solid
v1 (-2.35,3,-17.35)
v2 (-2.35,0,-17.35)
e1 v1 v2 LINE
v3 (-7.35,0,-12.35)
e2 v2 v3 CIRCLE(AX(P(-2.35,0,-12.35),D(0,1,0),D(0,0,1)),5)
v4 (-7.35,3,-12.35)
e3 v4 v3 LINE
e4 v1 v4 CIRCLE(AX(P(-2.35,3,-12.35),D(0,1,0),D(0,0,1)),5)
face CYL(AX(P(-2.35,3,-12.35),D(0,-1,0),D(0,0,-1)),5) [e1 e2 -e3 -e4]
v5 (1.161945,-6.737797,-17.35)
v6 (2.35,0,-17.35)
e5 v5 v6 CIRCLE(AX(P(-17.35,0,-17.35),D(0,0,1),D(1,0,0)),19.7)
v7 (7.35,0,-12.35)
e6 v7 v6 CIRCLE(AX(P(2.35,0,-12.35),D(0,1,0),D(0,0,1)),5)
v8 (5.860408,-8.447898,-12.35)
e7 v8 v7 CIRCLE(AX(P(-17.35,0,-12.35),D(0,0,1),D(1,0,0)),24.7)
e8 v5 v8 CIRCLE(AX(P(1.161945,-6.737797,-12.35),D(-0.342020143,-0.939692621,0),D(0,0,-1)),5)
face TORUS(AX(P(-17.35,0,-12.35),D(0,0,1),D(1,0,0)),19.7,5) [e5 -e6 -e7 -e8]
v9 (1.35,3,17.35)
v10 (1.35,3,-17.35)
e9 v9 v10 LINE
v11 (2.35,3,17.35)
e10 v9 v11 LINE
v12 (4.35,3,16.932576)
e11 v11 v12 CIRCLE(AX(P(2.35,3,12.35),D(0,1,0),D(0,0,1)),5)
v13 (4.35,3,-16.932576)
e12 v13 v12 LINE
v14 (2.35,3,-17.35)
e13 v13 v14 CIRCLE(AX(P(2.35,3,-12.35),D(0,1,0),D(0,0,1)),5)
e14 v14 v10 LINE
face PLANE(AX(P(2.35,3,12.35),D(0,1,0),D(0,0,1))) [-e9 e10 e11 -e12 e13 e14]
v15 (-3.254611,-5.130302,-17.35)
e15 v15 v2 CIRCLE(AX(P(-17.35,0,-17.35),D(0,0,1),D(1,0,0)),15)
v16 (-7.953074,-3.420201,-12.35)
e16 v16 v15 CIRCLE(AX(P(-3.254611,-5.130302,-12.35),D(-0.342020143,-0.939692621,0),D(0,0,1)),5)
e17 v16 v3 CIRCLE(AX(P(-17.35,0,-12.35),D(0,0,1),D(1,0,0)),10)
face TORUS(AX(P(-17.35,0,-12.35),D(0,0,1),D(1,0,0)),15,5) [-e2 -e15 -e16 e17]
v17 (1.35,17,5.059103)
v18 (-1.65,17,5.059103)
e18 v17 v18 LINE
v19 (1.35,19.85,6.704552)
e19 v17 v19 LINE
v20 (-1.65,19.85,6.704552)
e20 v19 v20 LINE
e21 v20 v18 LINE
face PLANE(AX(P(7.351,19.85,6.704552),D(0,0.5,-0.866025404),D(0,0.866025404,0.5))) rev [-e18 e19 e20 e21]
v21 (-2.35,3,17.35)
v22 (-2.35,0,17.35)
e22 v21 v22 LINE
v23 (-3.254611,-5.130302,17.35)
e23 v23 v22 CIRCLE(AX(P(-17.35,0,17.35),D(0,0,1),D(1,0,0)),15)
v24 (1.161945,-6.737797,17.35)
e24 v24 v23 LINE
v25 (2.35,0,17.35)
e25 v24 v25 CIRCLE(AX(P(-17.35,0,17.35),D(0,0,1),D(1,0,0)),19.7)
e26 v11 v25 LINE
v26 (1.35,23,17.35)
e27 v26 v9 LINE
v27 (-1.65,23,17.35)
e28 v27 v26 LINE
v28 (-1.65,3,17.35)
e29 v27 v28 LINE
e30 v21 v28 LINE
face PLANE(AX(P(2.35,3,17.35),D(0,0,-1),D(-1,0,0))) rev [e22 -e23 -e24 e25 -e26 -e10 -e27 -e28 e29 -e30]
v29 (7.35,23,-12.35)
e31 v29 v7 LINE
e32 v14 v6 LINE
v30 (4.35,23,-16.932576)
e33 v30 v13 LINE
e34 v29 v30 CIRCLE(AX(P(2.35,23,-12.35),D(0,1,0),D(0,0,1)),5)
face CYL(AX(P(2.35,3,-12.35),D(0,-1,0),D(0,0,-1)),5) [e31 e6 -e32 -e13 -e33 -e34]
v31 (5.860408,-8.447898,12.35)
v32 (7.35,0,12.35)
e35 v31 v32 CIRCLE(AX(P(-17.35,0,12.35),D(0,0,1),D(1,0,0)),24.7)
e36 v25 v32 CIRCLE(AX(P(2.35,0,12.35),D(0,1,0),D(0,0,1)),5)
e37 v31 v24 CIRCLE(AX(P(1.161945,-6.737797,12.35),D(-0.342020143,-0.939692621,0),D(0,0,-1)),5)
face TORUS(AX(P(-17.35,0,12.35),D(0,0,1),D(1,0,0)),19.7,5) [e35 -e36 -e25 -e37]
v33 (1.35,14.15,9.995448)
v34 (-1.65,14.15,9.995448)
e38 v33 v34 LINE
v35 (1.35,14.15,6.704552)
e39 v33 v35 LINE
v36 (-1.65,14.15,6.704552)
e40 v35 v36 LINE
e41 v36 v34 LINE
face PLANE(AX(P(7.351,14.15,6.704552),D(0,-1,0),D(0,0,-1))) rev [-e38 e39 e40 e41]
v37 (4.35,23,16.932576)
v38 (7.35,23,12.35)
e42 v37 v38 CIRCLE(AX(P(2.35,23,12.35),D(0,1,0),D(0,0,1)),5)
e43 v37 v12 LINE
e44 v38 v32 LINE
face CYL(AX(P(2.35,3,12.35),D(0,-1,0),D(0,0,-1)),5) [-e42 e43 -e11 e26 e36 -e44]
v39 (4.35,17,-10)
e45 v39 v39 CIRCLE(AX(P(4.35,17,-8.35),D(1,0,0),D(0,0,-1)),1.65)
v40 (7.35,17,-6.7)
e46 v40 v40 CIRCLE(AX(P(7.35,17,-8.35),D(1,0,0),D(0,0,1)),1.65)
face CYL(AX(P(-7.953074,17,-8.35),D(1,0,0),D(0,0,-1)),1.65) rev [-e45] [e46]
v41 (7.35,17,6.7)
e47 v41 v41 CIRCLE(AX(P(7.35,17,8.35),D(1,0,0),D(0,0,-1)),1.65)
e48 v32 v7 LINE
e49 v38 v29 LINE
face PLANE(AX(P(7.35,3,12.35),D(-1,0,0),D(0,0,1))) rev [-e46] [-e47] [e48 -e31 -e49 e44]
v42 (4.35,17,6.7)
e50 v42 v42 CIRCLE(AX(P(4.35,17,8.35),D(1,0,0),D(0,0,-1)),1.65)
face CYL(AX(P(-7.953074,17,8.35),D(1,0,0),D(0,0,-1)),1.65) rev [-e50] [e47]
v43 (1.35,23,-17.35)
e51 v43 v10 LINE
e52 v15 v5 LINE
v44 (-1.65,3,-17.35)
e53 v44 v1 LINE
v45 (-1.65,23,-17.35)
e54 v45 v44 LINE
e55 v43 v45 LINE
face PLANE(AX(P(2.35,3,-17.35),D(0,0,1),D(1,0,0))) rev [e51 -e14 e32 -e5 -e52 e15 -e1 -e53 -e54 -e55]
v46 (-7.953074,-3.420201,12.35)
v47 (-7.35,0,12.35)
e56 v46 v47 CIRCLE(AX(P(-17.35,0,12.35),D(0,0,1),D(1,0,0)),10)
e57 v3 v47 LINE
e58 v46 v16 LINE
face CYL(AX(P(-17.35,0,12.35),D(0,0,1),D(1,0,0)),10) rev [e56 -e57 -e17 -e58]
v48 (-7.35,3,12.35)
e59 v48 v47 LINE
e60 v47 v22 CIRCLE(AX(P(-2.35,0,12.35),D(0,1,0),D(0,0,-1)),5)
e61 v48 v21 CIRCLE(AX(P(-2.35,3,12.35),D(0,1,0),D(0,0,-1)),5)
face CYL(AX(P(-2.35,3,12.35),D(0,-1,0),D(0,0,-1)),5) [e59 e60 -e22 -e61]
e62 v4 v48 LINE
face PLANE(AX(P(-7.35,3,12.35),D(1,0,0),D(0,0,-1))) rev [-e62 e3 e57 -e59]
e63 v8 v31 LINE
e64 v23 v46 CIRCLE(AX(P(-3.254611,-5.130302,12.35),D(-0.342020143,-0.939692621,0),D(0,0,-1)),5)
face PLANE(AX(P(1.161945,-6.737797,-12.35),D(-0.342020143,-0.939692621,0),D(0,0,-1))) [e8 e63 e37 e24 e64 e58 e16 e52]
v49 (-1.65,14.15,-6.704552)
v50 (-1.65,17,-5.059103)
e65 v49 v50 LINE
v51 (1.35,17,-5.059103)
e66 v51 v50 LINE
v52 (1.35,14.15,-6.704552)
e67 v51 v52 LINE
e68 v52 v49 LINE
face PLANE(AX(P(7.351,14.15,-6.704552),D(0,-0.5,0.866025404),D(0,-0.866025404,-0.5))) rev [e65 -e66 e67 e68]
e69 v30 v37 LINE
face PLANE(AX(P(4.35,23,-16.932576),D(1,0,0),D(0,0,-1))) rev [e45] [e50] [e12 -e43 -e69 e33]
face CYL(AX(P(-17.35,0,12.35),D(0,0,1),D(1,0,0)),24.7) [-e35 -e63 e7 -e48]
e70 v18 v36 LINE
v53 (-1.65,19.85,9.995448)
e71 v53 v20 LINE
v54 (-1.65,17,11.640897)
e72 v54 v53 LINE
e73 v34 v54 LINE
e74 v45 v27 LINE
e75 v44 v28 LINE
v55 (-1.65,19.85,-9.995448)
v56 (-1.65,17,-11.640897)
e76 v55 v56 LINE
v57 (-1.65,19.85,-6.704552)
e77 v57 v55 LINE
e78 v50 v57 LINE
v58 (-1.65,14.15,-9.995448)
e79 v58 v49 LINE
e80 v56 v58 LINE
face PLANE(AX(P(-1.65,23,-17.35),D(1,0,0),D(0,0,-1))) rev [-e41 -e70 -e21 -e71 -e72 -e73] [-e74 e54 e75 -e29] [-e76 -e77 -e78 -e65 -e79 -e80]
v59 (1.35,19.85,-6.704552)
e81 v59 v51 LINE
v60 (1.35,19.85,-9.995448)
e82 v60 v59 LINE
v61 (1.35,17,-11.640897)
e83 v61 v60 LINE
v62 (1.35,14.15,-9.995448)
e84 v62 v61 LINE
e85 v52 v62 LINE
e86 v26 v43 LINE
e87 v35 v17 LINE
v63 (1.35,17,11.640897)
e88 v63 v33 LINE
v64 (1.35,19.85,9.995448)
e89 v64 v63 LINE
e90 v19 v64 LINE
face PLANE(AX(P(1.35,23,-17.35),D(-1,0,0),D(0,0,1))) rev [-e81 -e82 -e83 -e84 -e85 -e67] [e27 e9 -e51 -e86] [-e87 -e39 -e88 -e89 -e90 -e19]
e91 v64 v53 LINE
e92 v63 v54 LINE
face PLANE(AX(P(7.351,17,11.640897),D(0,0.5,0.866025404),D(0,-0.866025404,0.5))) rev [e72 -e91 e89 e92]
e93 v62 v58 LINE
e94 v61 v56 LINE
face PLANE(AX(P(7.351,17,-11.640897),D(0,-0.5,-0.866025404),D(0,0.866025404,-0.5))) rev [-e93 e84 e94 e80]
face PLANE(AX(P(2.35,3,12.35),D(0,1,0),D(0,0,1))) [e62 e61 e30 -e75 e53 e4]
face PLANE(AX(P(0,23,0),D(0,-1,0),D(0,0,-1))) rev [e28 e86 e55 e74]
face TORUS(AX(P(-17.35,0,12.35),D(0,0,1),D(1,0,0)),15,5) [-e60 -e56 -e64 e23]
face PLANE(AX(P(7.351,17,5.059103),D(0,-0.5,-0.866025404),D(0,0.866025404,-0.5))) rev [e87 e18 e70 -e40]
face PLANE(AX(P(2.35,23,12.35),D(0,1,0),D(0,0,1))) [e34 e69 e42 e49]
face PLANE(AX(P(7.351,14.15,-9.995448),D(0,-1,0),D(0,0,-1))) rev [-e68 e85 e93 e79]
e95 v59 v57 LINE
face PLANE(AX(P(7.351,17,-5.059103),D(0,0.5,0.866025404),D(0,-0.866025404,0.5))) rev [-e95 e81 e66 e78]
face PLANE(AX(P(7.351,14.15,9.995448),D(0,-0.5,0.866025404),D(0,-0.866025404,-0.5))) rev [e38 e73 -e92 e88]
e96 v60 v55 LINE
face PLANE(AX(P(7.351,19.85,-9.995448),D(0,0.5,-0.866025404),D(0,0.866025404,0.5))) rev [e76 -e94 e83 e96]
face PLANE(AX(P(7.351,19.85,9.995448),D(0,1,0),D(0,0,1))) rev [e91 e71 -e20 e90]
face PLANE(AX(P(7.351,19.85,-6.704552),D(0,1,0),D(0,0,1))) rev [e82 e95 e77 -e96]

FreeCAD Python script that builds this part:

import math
import FreeCAD as App
import Part
import Sketcher
Q = App.Units.Quantity

doc = App.newDocument("Part")
body = doc.addObject("PartDesign::Body", "Body")

sketch1 = body.newObject("Sketcher::SketchObject", "Sketch")
sketch1.AttachmentSupport = (doc.getObject("XZ_Plane"), [""])
sketch1.MapMode = "FlatFace"
sketch1.addGeometry([
    Part.LineSegment(App.Vector(-2.35, 17.35, 0), App.Vector(2.35, 17.35, 0)),
    Part.ArcOfCircle(Part.Circle(App.Vector(2.35, 12.35, 0), App.Vector(0, 0, 1), 5), math.radians(0), math.radians(90)),
    Part.LineSegment(App.Vector(7.35, 12.35, 0), App.Vector(7.35, -12.35, 0)),
    Part.ArcOfCircle(Part.Circle(App.Vector(2.35, -12.35, 0), App.Vector(0, 0, 1), 5), math.radians(-90), math.radians(0)),
    Part.LineSegment(App.Vector(2.35, -17.35, 0), App.Vector(-2.35, -17.35, 0)),
    Part.ArcOfCircle(Part.Circle(App.Vector(-2.35, -12.35, 0), App.Vector(0, 0, 1), 5), math.radians(180), math.radians(270)),
    Part.LineSegment(App.Vector(-7.35, -12.35, 0), App.Vector(-7.35, 12.35, 0)),
    Part.ArcOfCircle(Part.Circle(App.Vector(-2.35, 12.35, 0), App.Vector(0, 0, 1), 5), math.radians(90), math.radians(180)),
], False)
sketch1.addConstraint([
    Sketcher.Constraint("Tangent", 0, 2, 1, 2),
    Sketcher.Constraint("Tangent", 1, 1, 2, 1),
    Sketcher.Constraint("Tangent", 2, 2, 3, 2),
    Sketcher.Constraint("Tangent", 3, 1, 4, 1),
    Sketcher.Constraint("Tangent", 4, 2, 5, 2),
    Sketcher.Constraint("Tangent", 5, 1, 6, 1),
    Sketcher.Constraint("Tangent", 6, 2, 7, 2),
    Sketcher.Constraint("Tangent", 7, 1, 0, 1),
    Sketcher.Constraint("Horizontal", 0),
    Sketcher.Constraint("Vertical", 2),
    Sketcher.Constraint("Horizontal", 4),
    Sketcher.Constraint("Vertical", 6),
    Sketcher.Constraint("Equal", 1, 3),
    Sketcher.Constraint("Equal", 3, 5),
    Sketcher.Constraint("Equal", 5, 7),
    Sketcher.Constraint("Symmetric", 1, 3, 5, 3, -1, 1),
    Sketcher.Constraint("Radius", 1, 5.0),
    Sketcher.Constraint("DistanceX", 0, 1, 0, 2, 4.7),
    Sketcher.Constraint("DistanceY", 2, 2, 2, 1, 24.7),
])
pad1 = body.newObject("PartDesign::Pad", "Pad")
pad1.Profile = sketch1
pad1.Length = 3
pad1.Reversed = True

sketch2 = body.newObject("Sketcher::SketchObject", "Sketch001")
sketch2.AttachmentSupport = (doc.getObject("XZ_Plane"), [""])
sketch2.MapMode = "FlatFace"
sketch2.addGeometry([
    Part.LineSegment(App.Vector(-2.35, -17.35, 0), App.Vector(2.35, -17.35, 0)),
    Part.ArcOfCircle(Part.Circle(App.Vector(2.35, -12.35, 0), App.Vector(0, 0, 1), 5), math.radians(-90), math.radians(0)),
    Part.LineSegment(App.Vector(7.35, -12.35, 0), App.Vector(7.35, 12.35, 0)),
    Part.ArcOfCircle(Part.Circle(App.Vector(2.35, 12.35, 0), App.Vector(0, 0, 1), 5), math.radians(0), math.radians(90)),
    Part.LineSegment(App.Vector(2.35, 17.35, 0), App.Vector(-2.35, 17.35, 0)),
    Part.ArcOfCircle(Part.Circle(App.Vector(-2.35, 12.35, 0), App.Vector(0, 0, 1), 5), math.radians(90), math.radians(180)),
    Part.LineSegment(App.Vector(-7.35, 12.35, 0), App.Vector(-7.35, -12.35, 0)),
    Part.ArcOfCircle(Part.Circle(App.Vector(-2.35, -12.35, 0), App.Vector(0, 0, 1), 5), math.radians(180), math.radians(270)),
], False)
sketch2.addGeometry(Part.LineSegment(App.Vector(-17.35, 17.35, 0), App.Vector(-17.35, -17.35, 0)), True)
sketch2.addConstraint([
    Sketcher.Constraint("Tangent", 0, 2, 1, 1),
    Sketcher.Constraint("Tangent", 1, 2, 2, 1),
    Sketcher.Constraint("Tangent", 2, 2, 3, 1),
    Sketcher.Constraint("Tangent", 3, 2, 4, 1),
    Sketcher.Constraint("Tangent", 4, 2, 5, 1),
    Sketcher.Constraint("Tangent", 5, 2, 6, 1),
    Sketcher.Constraint("Tangent", 6, 2, 7, 1),
    Sketcher.Constraint("Tangent", 7, 2, 0, 1),
    Sketcher.Constraint("Horizontal", 0),
    Sketcher.Constraint("Vertical", 2),
    Sketcher.Constraint("Horizontal", 4),
    Sketcher.Constraint("Vertical", 6),
    Sketcher.Constraint("Vertical", 8),
    Sketcher.Constraint("Equal", 1, 3),
    Sketcher.Constraint("Equal", 3, 5),
    Sketcher.Constraint("Equal", 5, 7),
    Sketcher.Constraint("Symmetric", 1, 3, 5, 3, -1, 1),
    Sketcher.Constraint("Horizontal", 4, 2, 8, 1),
    Sketcher.Constraint("Horizontal", 7, 2, 8, 2),
    Sketcher.Constraint("Radius", 1, 5.0),
    Sketcher.Constraint("DistanceX", 0, 1, 0, 2, 4.7),
    Sketcher.Constraint("DistanceY", 2, 1, 2, 2, 24.7),
    Sketcher.Constraint("DistanceX", 8, 1, 5, 2, 10.0),
])
revolution = body.newObject("PartDesign::Revolution", "Revolution")
revolution.Profile = sketch2
revolution.ReferenceAxis = (sketch2, ["Axis0"])
revolution.Angle = 20

sketch3 = body.newObject("Sketcher::SketchObject", "Sketch002")
sketch3.AttachmentSupport = (doc.getObject("XZ_Plane"), [""])
sketch3.MapMode = "FlatFace"
sketch3.AttachmentOffset = App.Placement(App.Vector(0, 0, -3), App.Rotation())
sketch3.addGeometry([
    Part.LineSegment(App.Vector(-1.65, -17.35, 0), App.Vector(-1.65, 17.35, 0)),
    Part.LineSegment(App.Vector(-1.65, 17.35, 0), App.Vector(1.35, 17.35, 0)),
    Part.LineSegment(App.Vector(1.35, 17.35, 0), App.Vector(1.35, -17.35, 0)),
    Part.LineSegment(App.Vector(1.35, -17.35, 0), App.Vector(-1.65, -17.35, 0)),
    Part.LineSegment(App.Vector(7.35, 12.35, 0), App.Vector(7.35, -12.35, 0)),
    Part.ArcOfCircle(Part.Circle(App.Vector(2.35, -12.35, 0), App.Vector(0, 0, 1), 5), math.radians(-66.421822), math.radians(0)),
    Part.LineSegment(App.Vector(4.35, -16.932576, 0), App.Vector(4.35, 16.932576, 0)),
    Part.ArcOfCircle(Part.Circle(App.Vector(2.35, 12.35, 0), App.Vector(0, 0, 1), 5), math.radians(0), math.radians(66.421822)),
], False)
sketch3.addConstraint([
    Sketcher.Constraint("Coincident", 0, 2, 1, 1),
    Sketcher.Constraint("Coincident", 1, 2, 2, 1),
    Sketcher.Constraint("Coincident", 2, 2, 3, 1),
    Sketcher.Constraint("Coincident", 3, 2, 0, 1),
    Sketcher.Constraint("Tangent", 4, 2, 5, 2),
    Sketcher.Constraint("Coincident", 5, 1, 6, 1),
    Sketcher.Constraint("Coincident", 6, 2, 7, 2),
    Sketcher.Constraint("Tangent", 7, 1, 4, 1),
    Sketcher.Constraint("Vertical", 0),
    Sketcher.Constraint("Horizontal", 1),
    Sketcher.Constraint("Vertical", 2),
    Sketcher.Constraint("Horizontal", 3),
    Sketcher.Constraint("Vertical", 4),
    Sketcher.Constraint("Vertical", 6),
    Sketcher.Constraint("Equal", 5, 7),
    Sketcher.Constraint("Radius", 5, 5.0),
    Sketcher.Constraint("DistanceX", 1, 1, 1, 2, 3.0),
    Sketcher.Constraint("DistanceY", 0, 1, 0, 2, 34.7),
    Sketcher.Constraint("DistanceY", 4, 2, 4, 1, 24.7),
    Sketcher.Constraint("DistanceX", 0, 2, 7, 3, 4.0),
    Sketcher.Constraint("DistanceY", 7, 3, 0, 2, 5.0),
    Sketcher.Constraint("DistanceX", 2, 2, 5, 1, 3.0),
    Sketcher.Constraint("DistanceX", -1, 1, 5, 3, 2.35),
    Sketcher.Constraint("DistanceY", 5, 3, -1, 1, 12.35),
])
pad2 = body.newObject("PartDesign::Pad", "Pad001")
pad2.Profile = sketch3
pad2.Length = 20
pad2.Reversed = True

sketch4 = body.newObject("Sketcher::SketchObject", "Sketch003")
sketch4.AttachmentSupport = (doc.getObject("YZ_Plane"), [""])
sketch4.MapMode = "FlatFace"
sketch4.AttachmentOffset = App.Placement(App.Vector(0, 0, 7.35), App.Rotation())
sketch4.addGeometry([
    Part.Circle(App.Vector(17, 8.35, 0), App.Vector(0, 0, 1), 1.65),
    Part.Circle(App.Vector(17, -8.35, 0), App.Vector(0, 0, 1), 1.65),
], False)
sketch4.addConstraint([
    Sketcher.Constraint("Equal", 0, 1),
    Sketcher.Constraint("Symmetric", 0, 3, 1, 3, -1),
    Sketcher.Constraint("Diameter", 0, 3.3),
    Sketcher.Constraint("DistanceX", -1, 1, 0, 3, 17.0),
    Sketcher.Constraint("DistanceY", 1, 3, 0, 3, 16.7),
])
pocket1 = body.newObject("PartDesign::Pocket", "Pocket")
pocket1.Profile = sketch4
pocket1.Type = "ThroughAll"

sketch5 = body.newObject("Sketcher::SketchObject", "Sketch004")
sketch5.AttachmentSupport = (doc.getObject("YZ_Plane"), [""])
sketch5.MapMode = "FlatFace"
sketch5.AttachmentOffset = App.Placement(App.Vector(0, 0, -1.65), App.Rotation())
sketch5.addGeometry([
    Part.LineSegment(App.Vector(19.85, -6.704552, 0), App.Vector(19.85, -9.995448, 0)),
    Part.LineSegment(App.Vector(19.85, -9.995448, 0), App.Vector(17, -11.640897, 0)),
    Part.LineSegment(App.Vector(17, -11.640897, 0), App.Vector(14.15, -9.995448, 0)),
    Part.LineSegment(App.Vector(14.15, -9.995448, 0), App.Vector(14.15, -6.704552, 0)),
    Part.LineSegment(App.Vector(14.15, -6.704552, 0), App.Vector(17, -5.059103, 0)),
    Part.LineSegment(App.Vector(17, -5.059103, 0), App.Vector(19.85, -6.704552, 0)),
], False)
sketch5.addConstraint([
    Sketcher.Constraint("Coincident", 0, 2, 1, 1),
    Sketcher.Constraint("Coincident", 1, 2, 2, 1),
    Sketcher.Constraint("Coincident", 2, 2, 3, 1),
    Sketcher.Constraint("Coincident", 3, 2, 4, 1),
    Sketcher.Constraint("Coincident", 4, 2, 5, 1),
    Sketcher.Constraint("Coincident", 5, 2, 0, 1),
    Sketcher.Constraint("Vertical", 0),
    Sketcher.Constraint("Vertical", 3),
    Sketcher.Constraint("Parallel", 1, 4),
    Sketcher.Constraint("Parallel", 2, 5),
    Sketcher.Constraint("Horizontal", 0, 2, 2, 2),
    Sketcher.Constraint("Horizontal", 3, 2, 5, 2),
    Sketcher.Constraint("Vertical", 1, 2, 4, 2),
    Sketcher.Constraint("Angle", 1, Q("-150 deg")),
    Sketcher.Constraint("DistanceX", -1, 1, 1, 2, 17.0),
    Sketcher.Constraint("DistanceX", 2, 2, 0, 2, 5.7),
    Sketcher.Constraint("DistanceY", 0, 2, 0, 1, 3.290897),
    Sketcher.Constraint("DistanceY", 0, 2, -1, 1, 9.995448),
])
pocket2 = body.newObject("PartDesign::Pocket", "Pocket001")
pocket2.Profile = sketch5
pocket2.Length = 3
pocket2.Reversed = True

sketch6 = body.newObject("Sketcher::SketchObject", "Sketch005")
sketch6.AttachmentSupport = (doc.getObject("YZ_Plane"), [""])
sketch6.MapMode = "FlatFace"
sketch6.AttachmentOffset = App.Placement(App.Vector(0, 0, -1.65), App.Rotation())
sketch6.addGeometry([
    Part.LineSegment(App.Vector(19.85, 9.995448, 0), App.Vector(19.85, 6.704552, 0)),
    Part.LineSegment(App.Vector(19.85, 6.704552, 0), App.Vector(17, 5.059103, 0)),
    Part.LineSegment(App.Vector(17, 5.059103, 0), App.Vector(14.15, 6.704552, 0)),
    Part.LineSegment(App.Vector(14.15, 6.704552, 0), App.Vector(14.15, 9.995448, 0)),
    Part.LineSegment(App.Vector(14.15, 9.995448, 0), App.Vector(17, 11.640897, 0)),
    Part.LineSegment(App.Vector(17, 11.640897, 0), App.Vector(19.85, 9.995448, 0)),
], False)
sketch6.addConstraint([
    Sketcher.Constraint("Coincident", 0, 2, 1, 1),
    Sketcher.Constraint("Coincident", 1, 2, 2, 1),
    Sketcher.Constraint("Coincident", 2, 2, 3, 1),
    Sketcher.Constraint("Coincident", 3, 2, 4, 1),
    Sketcher.Constraint("Coincident", 4, 2, 5, 1),
    Sketcher.Constraint("Coincident", 5, 2, 0, 1),
    Sketcher.Constraint("Vertical", 0),
    Sketcher.Constraint("Vertical", 3),
    Sketcher.Constraint("Parallel", 1, 4),
    Sketcher.Constraint("Parallel", 2, 5),
    Sketcher.Constraint("Horizontal", 0, 2, 2, 2),
    Sketcher.Constraint("Horizontal", 3, 2, 5, 2),
    Sketcher.Constraint("Vertical", 1, 2, 4, 2),
    Sketcher.Constraint("Angle", 1, Q("-150 deg")),
    Sketcher.Constraint("DistanceX", -1, 1, 1, 2, 17.0),
    Sketcher.Constraint("DistanceX", 2, 2, 0, 2, 5.7),
    Sketcher.Constraint("DistanceY", 0, 2, 0, 1, 3.290897),
    Sketcher.Constraint("DistanceY", -1, 1, 0, 2, 6.704552),
])
pocket3 = body.newObject("PartDesign::Pocket", "Pocket002")
pocket3.Profile = sketch6
pocket3.Length = 3
pocket3.Reversed = True

doc.recompute()
